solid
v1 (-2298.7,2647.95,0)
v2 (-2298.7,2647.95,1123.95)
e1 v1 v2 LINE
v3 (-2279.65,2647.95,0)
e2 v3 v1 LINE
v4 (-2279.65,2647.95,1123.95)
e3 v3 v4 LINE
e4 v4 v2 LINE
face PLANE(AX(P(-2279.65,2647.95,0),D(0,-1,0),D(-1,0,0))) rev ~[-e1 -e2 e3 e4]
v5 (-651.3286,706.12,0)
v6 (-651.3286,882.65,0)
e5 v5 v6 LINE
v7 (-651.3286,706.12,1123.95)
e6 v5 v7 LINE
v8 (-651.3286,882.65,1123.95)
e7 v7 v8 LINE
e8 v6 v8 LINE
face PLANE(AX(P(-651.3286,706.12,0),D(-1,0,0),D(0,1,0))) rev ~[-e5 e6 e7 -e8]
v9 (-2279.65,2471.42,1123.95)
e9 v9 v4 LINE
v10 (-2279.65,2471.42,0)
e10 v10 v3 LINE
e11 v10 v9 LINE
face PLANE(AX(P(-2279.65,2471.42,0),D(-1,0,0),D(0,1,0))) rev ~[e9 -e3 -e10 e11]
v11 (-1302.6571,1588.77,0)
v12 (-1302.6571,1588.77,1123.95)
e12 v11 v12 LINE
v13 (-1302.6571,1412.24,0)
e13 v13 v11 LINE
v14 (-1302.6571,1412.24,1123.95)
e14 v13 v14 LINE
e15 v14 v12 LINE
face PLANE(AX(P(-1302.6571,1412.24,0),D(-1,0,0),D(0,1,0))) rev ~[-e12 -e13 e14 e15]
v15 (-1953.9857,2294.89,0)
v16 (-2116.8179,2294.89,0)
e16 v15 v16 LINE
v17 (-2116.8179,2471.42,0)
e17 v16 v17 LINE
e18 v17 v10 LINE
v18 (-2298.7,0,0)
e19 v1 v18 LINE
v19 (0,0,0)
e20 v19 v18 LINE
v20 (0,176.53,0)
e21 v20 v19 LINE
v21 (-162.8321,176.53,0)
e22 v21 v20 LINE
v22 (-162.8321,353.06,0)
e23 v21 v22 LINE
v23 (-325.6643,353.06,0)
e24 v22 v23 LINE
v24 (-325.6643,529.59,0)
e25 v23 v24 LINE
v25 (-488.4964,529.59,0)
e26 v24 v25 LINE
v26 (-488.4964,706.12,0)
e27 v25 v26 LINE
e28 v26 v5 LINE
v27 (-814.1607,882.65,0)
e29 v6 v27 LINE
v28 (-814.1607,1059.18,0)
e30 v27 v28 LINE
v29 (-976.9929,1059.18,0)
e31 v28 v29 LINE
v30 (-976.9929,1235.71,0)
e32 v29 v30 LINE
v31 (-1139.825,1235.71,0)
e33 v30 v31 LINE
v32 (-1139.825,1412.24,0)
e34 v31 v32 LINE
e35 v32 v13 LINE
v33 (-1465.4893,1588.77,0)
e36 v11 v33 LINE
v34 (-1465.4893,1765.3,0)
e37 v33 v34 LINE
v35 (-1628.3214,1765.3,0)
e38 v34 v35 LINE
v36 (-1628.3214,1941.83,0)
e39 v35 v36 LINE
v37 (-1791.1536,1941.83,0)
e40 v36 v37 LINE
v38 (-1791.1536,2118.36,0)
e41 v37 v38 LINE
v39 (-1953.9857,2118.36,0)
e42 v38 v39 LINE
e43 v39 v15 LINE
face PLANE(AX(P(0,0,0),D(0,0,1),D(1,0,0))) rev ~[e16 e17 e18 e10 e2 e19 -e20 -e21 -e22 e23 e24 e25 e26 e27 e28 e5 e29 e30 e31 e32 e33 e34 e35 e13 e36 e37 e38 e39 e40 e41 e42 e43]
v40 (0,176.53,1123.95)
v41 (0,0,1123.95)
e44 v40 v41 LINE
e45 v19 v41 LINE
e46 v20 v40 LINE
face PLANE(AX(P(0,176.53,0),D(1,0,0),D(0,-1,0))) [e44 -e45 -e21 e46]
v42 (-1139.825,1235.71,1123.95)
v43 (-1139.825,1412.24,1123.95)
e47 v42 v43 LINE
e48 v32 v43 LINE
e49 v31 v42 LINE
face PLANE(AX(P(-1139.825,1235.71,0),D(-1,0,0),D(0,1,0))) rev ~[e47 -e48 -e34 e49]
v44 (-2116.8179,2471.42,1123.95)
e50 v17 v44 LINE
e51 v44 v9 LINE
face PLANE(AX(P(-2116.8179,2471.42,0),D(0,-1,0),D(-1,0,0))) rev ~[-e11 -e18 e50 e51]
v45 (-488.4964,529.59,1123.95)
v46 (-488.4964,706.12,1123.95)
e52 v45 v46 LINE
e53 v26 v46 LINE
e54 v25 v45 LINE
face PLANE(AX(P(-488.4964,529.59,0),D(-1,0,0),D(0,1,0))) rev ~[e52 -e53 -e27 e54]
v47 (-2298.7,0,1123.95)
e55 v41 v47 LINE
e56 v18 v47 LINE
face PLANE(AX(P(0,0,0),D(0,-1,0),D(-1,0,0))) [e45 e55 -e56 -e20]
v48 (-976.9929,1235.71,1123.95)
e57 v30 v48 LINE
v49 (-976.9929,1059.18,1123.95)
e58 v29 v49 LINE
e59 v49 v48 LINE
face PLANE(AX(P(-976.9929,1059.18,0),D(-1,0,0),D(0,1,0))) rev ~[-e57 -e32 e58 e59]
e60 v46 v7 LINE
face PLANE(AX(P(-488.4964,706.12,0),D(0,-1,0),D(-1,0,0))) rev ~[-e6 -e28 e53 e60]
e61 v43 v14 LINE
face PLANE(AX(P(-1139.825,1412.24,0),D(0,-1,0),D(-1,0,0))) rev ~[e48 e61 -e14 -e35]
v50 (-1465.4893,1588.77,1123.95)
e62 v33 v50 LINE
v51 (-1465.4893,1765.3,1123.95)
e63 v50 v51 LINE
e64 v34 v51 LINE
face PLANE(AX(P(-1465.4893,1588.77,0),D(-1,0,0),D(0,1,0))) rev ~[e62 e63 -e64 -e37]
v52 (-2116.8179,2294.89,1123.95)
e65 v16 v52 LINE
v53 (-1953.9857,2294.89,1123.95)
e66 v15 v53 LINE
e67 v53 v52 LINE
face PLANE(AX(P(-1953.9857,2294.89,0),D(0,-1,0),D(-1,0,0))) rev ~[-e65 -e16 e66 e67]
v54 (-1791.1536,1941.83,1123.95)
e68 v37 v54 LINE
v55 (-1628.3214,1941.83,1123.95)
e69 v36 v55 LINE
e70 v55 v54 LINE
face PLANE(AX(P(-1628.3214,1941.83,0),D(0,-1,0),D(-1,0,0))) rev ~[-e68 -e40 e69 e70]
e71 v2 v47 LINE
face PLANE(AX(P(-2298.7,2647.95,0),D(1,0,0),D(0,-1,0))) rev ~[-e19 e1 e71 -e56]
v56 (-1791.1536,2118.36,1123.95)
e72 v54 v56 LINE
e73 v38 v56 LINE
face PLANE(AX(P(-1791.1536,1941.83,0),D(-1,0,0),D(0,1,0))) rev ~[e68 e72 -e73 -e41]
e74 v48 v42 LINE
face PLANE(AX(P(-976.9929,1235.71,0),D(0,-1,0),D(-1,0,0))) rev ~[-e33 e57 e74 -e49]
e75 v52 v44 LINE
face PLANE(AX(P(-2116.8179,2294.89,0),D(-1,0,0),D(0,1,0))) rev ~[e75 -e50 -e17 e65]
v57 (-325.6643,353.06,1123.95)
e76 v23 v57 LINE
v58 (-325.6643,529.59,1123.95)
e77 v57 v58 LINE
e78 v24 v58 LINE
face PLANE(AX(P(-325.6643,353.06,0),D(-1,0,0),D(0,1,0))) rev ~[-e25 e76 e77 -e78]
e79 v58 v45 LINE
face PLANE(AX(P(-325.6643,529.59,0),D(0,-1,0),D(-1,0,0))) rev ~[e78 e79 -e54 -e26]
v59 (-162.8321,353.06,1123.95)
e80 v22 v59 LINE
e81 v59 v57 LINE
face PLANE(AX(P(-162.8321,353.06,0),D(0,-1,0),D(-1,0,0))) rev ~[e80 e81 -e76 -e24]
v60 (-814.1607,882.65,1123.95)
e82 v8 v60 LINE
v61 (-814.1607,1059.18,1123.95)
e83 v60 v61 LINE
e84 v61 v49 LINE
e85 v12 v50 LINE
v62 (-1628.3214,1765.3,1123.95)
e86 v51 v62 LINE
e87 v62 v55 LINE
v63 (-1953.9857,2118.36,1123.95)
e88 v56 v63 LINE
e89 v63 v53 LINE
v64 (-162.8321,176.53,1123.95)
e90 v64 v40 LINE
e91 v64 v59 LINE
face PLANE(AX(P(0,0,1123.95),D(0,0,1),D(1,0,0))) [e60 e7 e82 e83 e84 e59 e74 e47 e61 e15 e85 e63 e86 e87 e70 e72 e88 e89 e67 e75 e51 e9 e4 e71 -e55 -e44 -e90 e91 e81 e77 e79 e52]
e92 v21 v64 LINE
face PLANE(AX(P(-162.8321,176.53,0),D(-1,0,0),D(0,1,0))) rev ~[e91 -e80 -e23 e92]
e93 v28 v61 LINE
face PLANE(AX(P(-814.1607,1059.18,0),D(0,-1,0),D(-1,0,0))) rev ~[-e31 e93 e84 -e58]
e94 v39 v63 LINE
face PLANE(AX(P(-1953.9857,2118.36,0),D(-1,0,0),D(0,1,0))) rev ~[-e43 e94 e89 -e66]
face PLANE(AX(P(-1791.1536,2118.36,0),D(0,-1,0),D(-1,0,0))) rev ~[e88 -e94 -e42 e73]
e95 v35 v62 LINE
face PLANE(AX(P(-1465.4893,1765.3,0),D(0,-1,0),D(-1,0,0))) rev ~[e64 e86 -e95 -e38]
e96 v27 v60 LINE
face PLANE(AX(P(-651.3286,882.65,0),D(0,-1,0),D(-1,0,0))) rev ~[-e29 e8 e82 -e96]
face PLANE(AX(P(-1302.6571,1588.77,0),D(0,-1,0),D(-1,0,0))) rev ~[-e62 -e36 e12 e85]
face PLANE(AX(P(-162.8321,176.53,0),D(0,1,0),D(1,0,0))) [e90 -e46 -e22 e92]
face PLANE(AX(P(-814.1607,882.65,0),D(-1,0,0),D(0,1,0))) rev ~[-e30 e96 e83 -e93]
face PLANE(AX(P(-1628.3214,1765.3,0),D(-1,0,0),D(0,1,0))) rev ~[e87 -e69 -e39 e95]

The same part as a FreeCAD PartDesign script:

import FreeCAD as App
import Part
import Sketcher
Q = App.Units.Quantity

doc = App.newDocument("Part")
body = doc.addObject("PartDesign::Body", "Body")

# Sketch on XY plane
sketch1 = doc.addObject("Sketcher::SketchObject", "Sketch")
body.addObject(sketch1)
sketch1.AttachmentSupport = (doc.XY_Plane, [""])
sketch1.MapMode = "FlatFace"
sketch1.addGeometry(Part.LineSegment(App.Vector(0, 177, 0), App.Vector(-163, 177, 0)), False)
sketch1.addGeometry(Part.LineSegment(App.Vector(-163, 177, 0), App.Vector(-163, 353, 0)), False)
sketch1.addGeometry(Part.LineSegment(App.Vector(-163, 353, 0), App.Vector(-326, 353, 0)), False)
sketch1.addGeometry(Part.LineSegment(App.Vector(-326, 353, 0), App.Vector(-326, 530, 0)), False)
sketch1.addGeometry(Part.LineSegment(App.Vector(-326, 530, 0), App.Vector(-488, 530, 0)), False)
sketch1.addGeometry(Part.LineSegment(App.Vector(-488, 530, 0), App.Vector(-488, 706, 0)), False)
sketch1.addGeometry(Part.LineSegment(App.Vector(-488, 706, 0), App.Vector(-651, 706, 0)), False)
sketch1.addGeometry(Part.LineSegment(App.Vector(-651, 706, 0), App.Vector(-651, 883, 0)), False)
sketch1.addGeometry(Part.LineSegment(App.Vector(-651, 883, 0), App.Vector(-814, 883, 0)), False)
sketch1.addGeometry(Part.LineSegment(App.Vector(-814, 883, 0), App.Vector(-814, 1059, 0)), False)
sketch1.addGeometry(Part.LineSegment(App.Vector(-814, 1059, 0), App.Vector(-977, 1059, 0)), False)
sketch1.addGeometry(Part.LineSegment(App.Vector(-977, 1059, 0), App.Vector(-977, 1236, 0)), False)
sketch1.addGeometry(Part.LineSegment(App.Vector(-977, 1236, 0), App.Vector(-1140, 1236, 0)), False)
sketch1.addGeometry(Part.LineSegment(App.Vector(-1140, 1236, 0), App.Vector(-1140, 1412, 0)), False)
sketch1.addGeometry(Part.LineSegment(App.Vector(-1140, 1412, 0), App.Vector(-1303, 1412, 0)), False)
sketch1.addGeometry(Part.LineSegment(App.Vector(-1303, 1412, 0), App.Vector(-1303, 1589, 0)), False)
sketch1.addGeometry(Part.LineSegment(App.Vector(-1303, 1589, 0), App.Vector(-1465, 1589, 0)), False)
sketch1.addGeometry(Part.LineSegment(App.Vector(-1465, 1589, 0), App.Vector(-1465, 1765, 0)), False)
sketch1.addGeometry(Part.LineSegment(App.Vector(-1465, 1765, 0), App.Vector(-1628, 1765, 0)), False)
sketch1.addGeometry(Part.LineSegment(App.Vector(-1628, 1765, 0), App.Vector(-1628, 1942, 0)), False)
sketch1.addGeometry(Part.LineSegment(App.Vector(-1628, 1942, 0), App.Vector(-1791, 1942, 0)), False)
sketch1.addGeometry(Part.LineSegment(App.Vector(-1791, 1942, 0), App.Vector(-1791, 2118, 0)), False)
sketch1.addGeometry(Part.LineSegment(App.Vector(-1791, 2118, 0), App.Vector(-1954, 2118, 0)), False)
sketch1.addGeometry(Part.LineSegment(App.Vector(-1954, 2118, 0), App.Vector(-1954, 2295, 0)), False)
sketch1.addGeometry(Part.LineSegment(App.Vector(-1954, 2295, 0), App.Vector(-2117, 2295, 0)), False)
sketch1.addGeometry(Part.LineSegment(App.Vector(-2117, 2295, 0), App.Vector(-2117, 2471, 0)), False)
sketch1.addGeometry(Part.LineSegment(App.Vector(-2117, 2471, 0), App.Vector(-2280, 2471, 0)), False)
sketch1.addGeometry(Part.LineSegment(App.Vector(-2280, 2471, 0), App.Vector(-2280, 2648, 0)), False)
sketch1.addGeometry(Part.LineSegment(App.Vector(-2280, 2648, 0), App.Vector(-2299, 2648, 0)), False)
sketch1.addGeometry(Part.LineSegment(App.Vector(-2299, 2648, 0), App.Vector(-2299, 0, 0)), False)
sketch1.addGeometry(Part.LineSegment(App.Vector(-2299, 0, 0), App.Vector(0, 0, 0)), False)
sketch1.addGeometry(Part.LineSegment(App.Vector(0, 0, 0), App.Vector(0, 177, 0)), False)
sketch1.addConstraint(Sketcher.Constraint("Coincident", 0, 2, 1, 1))
sketch1.addConstraint(Sketcher.Constraint("Coincident", 1, 2, 2, 1))
sketch1.addConstraint(Sketcher.Constraint("Coincident", 2, 2, 3, 1))
sketch1.addConstraint(Sketcher.Constraint("Coincident", 3, 2, 4, 1))
sketch1.addConstraint(Sketcher.Constraint("Coincident", 4, 2, 5, 1))
sketch1.addConstraint(Sketcher.Constraint("Coincident", 5, 2, 6, 1))
sketch1.addConstraint(Sketcher.Constraint("Coincident", 6, 2, 7, 1))
sketch1.addConstraint(Sketcher.Constraint("Coincident", 7, 2, 8, 1))
sketch1.addConstraint(Sketcher.Constraint("Coincident", 8, 2, 9, 1))
sketch1.addConstraint(Sketcher.Constraint("Coincident", 9, 2, 10, 1))
sketch1.addConstraint(Sketcher.Constraint("Coincident", 10, 2, 11, 1))
sketch1.addConstraint(Sketcher.Constraint("Coincident", 11, 2, 12, 1))
sketch1.addConstraint(Sketcher.Constraint("Coincident", 12, 2, 13, 1))
sketch1.addConstraint(Sketcher.Constraint("Coincident", 13, 2, 14, 1))
sketch1.addConstraint(Sketcher.Constraint("Coincident", 14, 2, 15, 1))
sketch1.addConstraint(Sketcher.Constraint("Coincident", 15, 2, 16, 1))
sketch1.addConstraint(Sketcher.Constraint("Coincident", 16, 2, 17, 1))
sketch1.addConstraint(Sketcher.Constraint("Coincident", 17, 2, 18, 1))
sketch1.addConstraint(Sketcher.Constraint("Coincident", 18, 2, 19, 1))
sketch1.addConstraint(Sketcher.Constraint("Coincident", 19, 2, 20, 1))
sketch1.addConstraint(Sketcher.Constraint("Coincident", 20, 2, 21, 1))
sketch1.addConstraint(Sketcher.Constraint("Coincident", 21, 2, 22, 1))
sketch1.addConstraint(Sketcher.Constraint("Coincident", 22, 2, 23, 1))
sketch1.addConstraint(Sketcher.Constraint("Coincident", 23, 2, 24, 1))
sketch1.addConstraint(Sketcher.Constraint("Coincident", 24, 2, 25, 1))
sketch1.addConstraint(Sketcher.Constraint("Coincident", 25, 2, 26, 1))
sketch1.addConstraint(Sketcher.Constraint("Coincident", 26, 2, 27, 1))
sketch1.addConstraint(Sketcher.Constraint("Coincident", 27, 2, 28, 1))
sketch1.addConstraint(Sketcher.Constraint("Coincident", 28, 2, 29, 1))
sketch1.addConstraint(Sketcher.Constraint("Coincident", 29, 2, 30, 1))
sketch1.addConstraint(Sketcher.Constraint("Coincident", 30, 2, 31, 1))
sketch1.addConstraint(Sketcher.Constraint("Coincident", 31, 2, 0, 1))
sketch1.addConstraint(Sketcher.Constraint("Horizontal", 0))
sketch1.addConstraint(Sketcher.Constraint("Vertical", 1))
sketch1.addConstraint(Sketcher.Constraint("Horizontal", 2))
sketch1.addConstraint(Sketcher.Constraint("Vertical", 3))
sketch1.addConstraint(Sketcher.Constraint("Horizontal", 4))
sketch1.addConstraint(Sketcher.Constraint("Vertical", 5))
sketch1.addConstraint(Sketcher.Constraint("Horizontal", 6))
sketch1.addConstraint(Sketcher.Constraint("Vertical", 7))
sketch1.addConstraint(Sketcher.Constraint("Horizontal", 8))
sketch1.addConstraint(Sketcher.Constraint("Vertical", 9))
sketch1.addConstraint(Sketcher.Constraint("Horizontal", 10))
sketch1.addConstraint(Sketcher.Constraint("Vertical", 11))
sketch1.addConstraint(Sketcher.Constraint("Horizontal", 12))
sketch1.addConstraint(Sketcher.Constraint("Vertical", 13))
sketch1.addConstraint(Sketcher.Constraint("Horizontal", 14))
sketch1.addConstraint(Sketcher.Constraint("Vertical", 15))
sketch1.addConstraint(Sketcher.Constraint("Horizontal", 16))
sketch1.addConstraint(Sketcher.Constraint("Vertical", 17))
sketch1.addConstraint(Sketcher.Constraint("Horizontal", 18))
sketch1.addConstraint(Sketcher.Constraint("Vertical", 19))
sketch1.addConstraint(Sketcher.Constraint("Horizontal", 20))
sketch1.addConstraint(Sketcher.Constraint("Vertical", 21))
sketch1.addConstraint(Sketcher.Constraint("Horizontal", 22))
sketch1.addConstraint(Sketcher.Constraint("Vertical", 23))
sketch1.addConstraint(Sketcher.Constraint("Horizontal", 24))
sketch1.addConstraint(Sketcher.Constraint("Vertical", 25))
sketch1.addConstraint(Sketcher.Constraint("Horizontal", 26))
sketch1.addConstraint(Sketcher.Constraint("Vertical", 27))
sketch1.addConstraint(Sketcher.Constraint("Horizontal", 28))
sketch1.addConstraint(Sketcher.Constraint("Vertical", 29))
sketch1.addConstraint(Sketcher.Constraint("Horizontal", 30))
sketch1.addConstraint(Sketcher.Constraint("Vertical", 31))
sketch1.addConstraint(Sketcher.Constraint("Coincident", 30, 2, -1, 1))
sketch1.addConstraint(Sketcher.Constraint("Equal", 0, 2))
sketch1.addConstraint(Sketcher.Constraint("Equal", 2, 4))
sketch1.addConstraint(Sketcher.Constraint("Equal", 4, 6))
sketch1.addConstraint(Sketcher.Constraint("Equal", 6, 8))
sketch1.addConstraint(Sketcher.Constraint("Equal", 8, 10))
sketch1.addConstraint(Sketcher.Constraint("Equal", 10, 12))
sketch1.addConstraint(Sketcher.Constraint("Equal", 12, 14))
sketch1.addConstraint(Sketcher.Constraint("Equal", 14, 16))
sketch1.addConstraint(Sketcher.Constraint("Equal", 16, 18))
sketch1.addConstraint(Sketcher.Constraint("Equal", 18, 20))
sketch1.addConstraint(Sketcher.Constraint("Equal", 20, 22))
sketch1.addConstraint(Sketcher.Constraint("Equal", 22, 24))
sketch1.addConstraint(Sketcher.Constraint("Equal", 24, 26))
sketch1.addConstraint(Sketcher.Constraint("Equal", 1, 3))
sketch1.addConstraint(Sketcher.Constraint("Equal", 3, 5))
sketch1.addConstraint(Sketcher.Constraint("Equal", 5, 7))
sketch1.addConstraint(Sketcher.Constraint("Equal", 7, 9))
sketch1.addConstraint(Sketcher.Constraint("Equal", 9, 11))
sketch1.addConstraint(Sketcher.Constraint("Equal", 11, 13))
sketch1.addConstraint(Sketcher.Constraint("Equal", 13, 15))
sketch1.addConstraint(Sketcher.Constraint("Equal", 15, 17))
sketch1.addConstraint(Sketcher.Constraint("Equal", 17, 19))
sketch1.addConstraint(Sketcher.Constraint("Equal", 19, 21))
sketch1.addConstraint(Sketcher.Constraint("Equal", 21, 23))
sketch1.addConstraint(Sketcher.Constraint("Equal", 23, 25))
sketch1.addConstraint(Sketcher.Constraint("Equal", 25, 27))
sketch1.addConstraint(Sketcher.Constraint("Equal", 27, 31))
sketch1.addConstraint(Sketcher.Constraint("DistanceX", 30, 1, 30, 2, Q("90.5 in")))
sketch1.addConstraint(Sketcher.Constraint("DistanceX", 28, 2, 28, 1, Q("0.75 in")))
sketch1.addConstraint(Sketcher.Constraint("DistanceY", 29, 2, 29, 1, Q("104.25 in")))
pad1 = doc.addObject("PartDesign::Pad", "Pad")
body.addObject(pad1)
pad1.Profile = sketch1
pad1.Length = Q("44.25 in")

doc.recompute()
